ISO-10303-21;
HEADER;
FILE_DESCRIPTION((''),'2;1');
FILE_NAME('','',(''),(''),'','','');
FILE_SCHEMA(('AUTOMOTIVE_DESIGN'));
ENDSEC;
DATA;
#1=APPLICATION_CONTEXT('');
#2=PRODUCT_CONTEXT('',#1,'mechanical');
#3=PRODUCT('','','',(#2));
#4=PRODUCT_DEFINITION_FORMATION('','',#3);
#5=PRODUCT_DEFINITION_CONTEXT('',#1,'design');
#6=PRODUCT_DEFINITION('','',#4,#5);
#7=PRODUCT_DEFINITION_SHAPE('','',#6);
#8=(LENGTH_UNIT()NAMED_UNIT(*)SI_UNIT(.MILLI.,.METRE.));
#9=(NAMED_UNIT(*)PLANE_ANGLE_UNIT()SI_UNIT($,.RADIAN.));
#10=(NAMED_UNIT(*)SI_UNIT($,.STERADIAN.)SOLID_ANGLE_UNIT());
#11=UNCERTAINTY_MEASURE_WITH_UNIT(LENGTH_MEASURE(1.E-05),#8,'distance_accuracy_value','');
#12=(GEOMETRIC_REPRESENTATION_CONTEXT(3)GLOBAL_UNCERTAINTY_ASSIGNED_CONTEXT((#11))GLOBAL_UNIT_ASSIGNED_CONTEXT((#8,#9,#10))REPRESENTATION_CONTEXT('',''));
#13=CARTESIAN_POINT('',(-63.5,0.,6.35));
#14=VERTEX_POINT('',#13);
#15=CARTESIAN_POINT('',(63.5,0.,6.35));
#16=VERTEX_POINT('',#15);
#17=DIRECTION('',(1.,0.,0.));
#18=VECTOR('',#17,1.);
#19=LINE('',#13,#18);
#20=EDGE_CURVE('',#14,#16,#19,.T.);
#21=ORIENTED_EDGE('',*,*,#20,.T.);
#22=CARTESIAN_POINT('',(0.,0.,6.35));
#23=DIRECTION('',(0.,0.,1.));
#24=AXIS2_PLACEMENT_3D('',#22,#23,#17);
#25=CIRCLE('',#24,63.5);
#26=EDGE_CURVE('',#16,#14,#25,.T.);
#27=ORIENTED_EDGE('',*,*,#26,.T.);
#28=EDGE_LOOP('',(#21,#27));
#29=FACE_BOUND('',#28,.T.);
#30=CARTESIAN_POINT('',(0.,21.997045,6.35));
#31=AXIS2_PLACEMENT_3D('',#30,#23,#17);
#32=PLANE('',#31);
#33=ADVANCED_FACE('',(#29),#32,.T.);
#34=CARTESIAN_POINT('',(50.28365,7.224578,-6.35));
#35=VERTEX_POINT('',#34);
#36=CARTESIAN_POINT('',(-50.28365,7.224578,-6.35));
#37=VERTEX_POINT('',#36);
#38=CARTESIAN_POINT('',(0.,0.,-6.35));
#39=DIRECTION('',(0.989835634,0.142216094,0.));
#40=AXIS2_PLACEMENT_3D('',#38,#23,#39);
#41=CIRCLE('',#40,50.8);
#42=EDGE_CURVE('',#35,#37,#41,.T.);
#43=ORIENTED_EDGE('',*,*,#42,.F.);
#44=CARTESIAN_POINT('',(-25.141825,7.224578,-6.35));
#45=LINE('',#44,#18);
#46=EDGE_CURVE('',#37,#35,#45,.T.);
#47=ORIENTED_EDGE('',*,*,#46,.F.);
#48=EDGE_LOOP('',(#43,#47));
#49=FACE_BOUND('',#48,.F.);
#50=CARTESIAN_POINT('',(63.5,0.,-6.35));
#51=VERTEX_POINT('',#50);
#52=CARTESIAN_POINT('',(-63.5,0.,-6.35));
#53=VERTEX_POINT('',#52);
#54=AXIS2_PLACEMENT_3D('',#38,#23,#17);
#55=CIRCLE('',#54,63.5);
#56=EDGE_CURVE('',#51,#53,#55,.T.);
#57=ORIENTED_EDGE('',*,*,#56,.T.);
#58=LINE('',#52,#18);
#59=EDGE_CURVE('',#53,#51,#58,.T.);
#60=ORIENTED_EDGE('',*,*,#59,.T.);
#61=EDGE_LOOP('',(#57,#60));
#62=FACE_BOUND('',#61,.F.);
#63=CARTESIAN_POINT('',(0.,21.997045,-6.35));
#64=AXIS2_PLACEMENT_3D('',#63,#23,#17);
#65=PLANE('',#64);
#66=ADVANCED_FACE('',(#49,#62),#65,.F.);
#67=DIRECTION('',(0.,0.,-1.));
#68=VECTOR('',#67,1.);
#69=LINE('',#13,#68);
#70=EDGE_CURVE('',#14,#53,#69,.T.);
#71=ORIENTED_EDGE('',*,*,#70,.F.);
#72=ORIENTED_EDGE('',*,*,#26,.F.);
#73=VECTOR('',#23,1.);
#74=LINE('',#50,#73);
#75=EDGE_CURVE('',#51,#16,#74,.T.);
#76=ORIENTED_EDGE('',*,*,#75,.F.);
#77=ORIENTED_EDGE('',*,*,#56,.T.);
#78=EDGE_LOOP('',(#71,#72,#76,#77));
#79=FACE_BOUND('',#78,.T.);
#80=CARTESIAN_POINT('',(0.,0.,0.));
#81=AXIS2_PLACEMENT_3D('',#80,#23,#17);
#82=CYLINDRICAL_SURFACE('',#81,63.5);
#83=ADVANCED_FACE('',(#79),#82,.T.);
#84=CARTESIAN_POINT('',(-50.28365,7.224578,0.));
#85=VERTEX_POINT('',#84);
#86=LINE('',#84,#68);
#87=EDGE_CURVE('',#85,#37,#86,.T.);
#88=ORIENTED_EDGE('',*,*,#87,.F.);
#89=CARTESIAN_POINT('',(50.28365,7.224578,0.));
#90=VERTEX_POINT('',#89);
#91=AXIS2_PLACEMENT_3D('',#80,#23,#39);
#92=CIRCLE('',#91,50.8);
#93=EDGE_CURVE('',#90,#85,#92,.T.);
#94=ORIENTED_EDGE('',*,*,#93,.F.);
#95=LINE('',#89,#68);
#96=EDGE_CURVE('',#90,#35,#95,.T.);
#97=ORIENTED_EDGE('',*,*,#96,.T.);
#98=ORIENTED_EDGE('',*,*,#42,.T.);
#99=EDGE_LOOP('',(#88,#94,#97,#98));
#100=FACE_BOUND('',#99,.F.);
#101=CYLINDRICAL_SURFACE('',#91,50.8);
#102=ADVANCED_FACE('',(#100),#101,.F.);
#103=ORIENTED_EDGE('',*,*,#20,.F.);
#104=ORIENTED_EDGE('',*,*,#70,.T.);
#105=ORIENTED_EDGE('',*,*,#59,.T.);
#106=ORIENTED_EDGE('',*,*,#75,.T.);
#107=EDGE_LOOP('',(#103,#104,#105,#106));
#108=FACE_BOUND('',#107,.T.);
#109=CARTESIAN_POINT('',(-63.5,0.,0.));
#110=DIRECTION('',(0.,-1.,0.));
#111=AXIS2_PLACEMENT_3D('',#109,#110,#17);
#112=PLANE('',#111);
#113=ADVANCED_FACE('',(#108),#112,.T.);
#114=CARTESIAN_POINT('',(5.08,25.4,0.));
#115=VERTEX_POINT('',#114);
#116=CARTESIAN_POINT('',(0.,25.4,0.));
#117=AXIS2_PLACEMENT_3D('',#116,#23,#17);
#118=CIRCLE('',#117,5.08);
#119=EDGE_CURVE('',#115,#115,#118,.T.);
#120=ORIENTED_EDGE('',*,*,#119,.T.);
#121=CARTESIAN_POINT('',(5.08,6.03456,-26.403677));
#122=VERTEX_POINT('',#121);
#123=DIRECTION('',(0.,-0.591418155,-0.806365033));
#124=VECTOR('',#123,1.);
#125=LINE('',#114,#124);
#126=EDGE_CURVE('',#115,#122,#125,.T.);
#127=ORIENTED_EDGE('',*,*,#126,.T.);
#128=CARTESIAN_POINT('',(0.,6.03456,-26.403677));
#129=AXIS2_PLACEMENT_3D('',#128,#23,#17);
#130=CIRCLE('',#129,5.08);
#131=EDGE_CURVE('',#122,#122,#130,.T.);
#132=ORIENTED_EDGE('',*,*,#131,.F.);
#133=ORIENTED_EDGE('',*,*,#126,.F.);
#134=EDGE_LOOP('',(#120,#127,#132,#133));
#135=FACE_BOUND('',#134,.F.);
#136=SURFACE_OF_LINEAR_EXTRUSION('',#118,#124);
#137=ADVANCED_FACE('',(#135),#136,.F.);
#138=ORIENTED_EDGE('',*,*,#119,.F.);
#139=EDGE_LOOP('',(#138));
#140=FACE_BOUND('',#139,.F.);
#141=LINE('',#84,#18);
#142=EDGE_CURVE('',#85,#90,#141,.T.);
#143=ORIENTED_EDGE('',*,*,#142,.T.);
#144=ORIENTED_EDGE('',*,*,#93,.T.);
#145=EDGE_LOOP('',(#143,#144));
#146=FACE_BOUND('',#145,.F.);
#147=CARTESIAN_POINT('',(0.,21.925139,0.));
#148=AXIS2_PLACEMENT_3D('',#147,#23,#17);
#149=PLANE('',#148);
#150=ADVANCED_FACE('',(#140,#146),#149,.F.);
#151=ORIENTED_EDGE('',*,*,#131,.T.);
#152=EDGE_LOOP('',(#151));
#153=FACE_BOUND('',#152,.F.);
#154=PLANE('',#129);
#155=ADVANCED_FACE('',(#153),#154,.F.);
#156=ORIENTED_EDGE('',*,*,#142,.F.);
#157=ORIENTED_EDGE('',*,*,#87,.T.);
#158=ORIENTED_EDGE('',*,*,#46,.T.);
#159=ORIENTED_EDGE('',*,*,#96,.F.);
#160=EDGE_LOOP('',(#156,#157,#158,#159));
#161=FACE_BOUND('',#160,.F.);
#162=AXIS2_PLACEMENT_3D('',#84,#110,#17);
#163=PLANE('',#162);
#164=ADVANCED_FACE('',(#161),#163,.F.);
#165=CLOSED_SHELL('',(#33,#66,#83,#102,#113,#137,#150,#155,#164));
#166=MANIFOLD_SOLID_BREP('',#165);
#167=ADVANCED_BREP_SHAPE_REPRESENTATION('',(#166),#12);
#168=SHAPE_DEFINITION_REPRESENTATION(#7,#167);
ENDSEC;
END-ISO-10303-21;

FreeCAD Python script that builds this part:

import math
import FreeCAD as App
import Part
import Sketcher
Q = App.Units.Quantity

doc = App.newDocument("Part")
body = doc.addObject("PartDesign::Body", "Body")

sketch1 = body.newObject("Sketcher::SketchObject", "Sketch")
sketch1.AttachmentSupport = (doc.getObject("XY_Plane"), [""])
sketch1.MapMode = "FlatFace"
sketch1.addGeometry(Part.LineSegment(App.Vector(-64, 0, 0), App.Vector(64, 0, 0)), False)
sketch1.addGeometry(Part.ArcOfCircle(Part.Circle(App.Vector(0, 0, 0), App.Vector(0, 0, 1), 64), math.radians(0), math.radians(180)), False)
sketch1.addConstraint(Sketcher.Constraint("Coincident", 0, 1, 1, 2))
sketch1.addConstraint(Sketcher.Constraint("Coincident", 1, 1, 0, 2))
sketch1.addConstraint(Sketcher.Constraint("Horizontal", 0))
sketch1.addConstraint(Sketcher.Constraint("Coincident", 1, 3, -1, 1))
sketch1.addConstraint(Sketcher.Constraint("PointOnObject", 0, 1, -1))
sketch1.addConstraint(Sketcher.Constraint("Radius", 1, Q("2.5 in")))
pad1 = body.newObject("PartDesign::Pad", "Pad")
pad1.Profile = sketch1
pad1.Length = Q("0.5 in")
pad1.Midplane = True

sketch2 = body.newObject("Sketcher::SketchObject", "Sketch001")
sketch2.AttachmentSupport = (doc.getObject("XY_Plane"), [""])
sketch2.MapMode = "FlatFace"
sketch2.addGeometry(Part.LineSegment(App.Vector(-50, 7, 0), App.Vector(50, 7, 0)), False)
sketch2.addGeometry(Part.ArcOfCircle(Part.Circle(App.Vector(0, 0, 0), App.Vector(0, 0, 1), 51), math.radians(8), math.radians(172)), False)
sketch2.addConstraint(Sketcher.Constraint("Coincident", 0, 1, 1, 2))
sketch2.addConstraint(Sketcher.Constraint("Coincident", 1, 1, 0, 2))
sketch2.addConstraint(Sketcher.Constraint("Horizontal", 0))
sketch2.addConstraint(Sketcher.Constraint("Coincident", 1, 3, -1, 1))
sketch2.addConstraint(Sketcher.Constraint("Radius", 1, Q("2 in")))
sketch2.addConstraint(Sketcher.Constraint("DistanceX", 0, 1, 0, 2, Q("100.5673 mm")))
pocket1 = body.newObject("PartDesign::Pocket", "Pocket")
pocket1.Profile = sketch2
pocket1.Length = Q("1 in")

sketch3 = body.newObject("Sketcher::SketchObject", "Sketch002")
sketch3.AttachmentSupport = (doc.getObject("XY_Plane"), [""])
sketch3.MapMode = "FlatFace"
sketch3.addGeometry(Part.Circle(App.Vector(0, 25.4, 0), App.Vector(0, 0, 1), 3.8), False)
sketch3.addConstraint(Sketcher.Constraint("PointOnObject", 0, 3, -2))
sketch3.addConstraint(Sketcher.Constraint("Diameter", 0, Q("0.3 in")))
sketch3.addConstraint(Sketcher.Constraint("DistanceY", -1, 1, 0, 3, Q("1 in")))

sketch4 = body.newObject("Sketcher::SketchObject", "Sketch003")
sketch4.Placement = App.Placement(App.Vector(0, 16.604825, -12.178597), App.Rotation(App.Vector(0, -0.591418155, -0.806365033), App.Vector(1.000000001, 0, 0), App.Vector(0, -0.806365033, 0.591418155), "ZXY"))
sketch4.addGeometry(Part.LineSegment(App.Vector(-15, 0, 0), App.Vector(18, 0, 0)), False)
sketch4.addConstraint(Sketcher.Constraint("Horizontal", 0))
sketch4.addConstraint(Sketcher.Constraint("PointOnObject", 0, 1, -1))
sketch4.addConstraint(Sketcher.Constraint("DistanceX", 0, 1, 0, 2, Q("32.744075 mm")))
sketch4.addConstraint(Sketcher.Constraint("DistanceX", 0, 1, -1, 1, Q("15.103082 mm")))
doc.recompute()

subtractivepipe = body.newObject("PartDesign::SubtractivePipe", "SubtractivePipe")
subtractivepipe.Profile = sketch3
subtractivepipe.Spine = (sketch4, ["Edge1"])

sketch5 = body.newObject("Sketcher::SketchObject", "Sketch004")
sketch5.AttachmentSupport = (doc.getObject("XY_Plane"), [""])
sketch5.MapMode = "FlatFace"
sketch5.addGeometry(Part.Circle(App.Vector(0, 25, 0), App.Vector(0, 0, 1), 5), False)
sketch5.addConstraint(Sketcher.Constraint("PointOnObject", 0, 3, -2))
sketch5.addConstraint(Sketcher.Constraint("Diameter", 0, Q("0.4 in")))
sketch5.addConstraint(Sketcher.Constraint("DistanceY", -1, 1, 0, 3, Q("1 in")))

sketch6 = body.newObject("Sketcher::SketchObject", "Sketch005")
sketch6.Placement = App.Placement(App.Vector(0, 16.604825, -12.178597), App.Rotation(App.Vector(0, -0.591418155, -0.806365033), App.Vector(1.000000001, 0, 0), App.Vector(0, -0.806365033, 0.591418155), "ZXY"))
sketch6.addGeometry(Part.LineSegment(App.Vector(-15, 0, 0), App.Vector(18, 0, 0)), False)
sketch6.addConstraint(Sketcher.Constraint("Horizontal", 0))
sketch6.addConstraint(Sketcher.Constraint("PointOnObject", 0, 1, -1))
sketch6.addConstraint(Sketcher.Constraint("DistanceX", 0, 1, 0, 2, Q("32.744075 mm")))
sketch6.addConstraint(Sketcher.Constraint("DistanceX", 0, 1, -1, 1, Q("15.103082 mm")))
doc.recompute()

additivepipe = body.newObject("PartDesign::AdditivePipe", "AdditivePipe")
additivepipe.Profile = sketch5
additivepipe.Spine = (sketch6, ["Edge1"])

doc.recompute()
